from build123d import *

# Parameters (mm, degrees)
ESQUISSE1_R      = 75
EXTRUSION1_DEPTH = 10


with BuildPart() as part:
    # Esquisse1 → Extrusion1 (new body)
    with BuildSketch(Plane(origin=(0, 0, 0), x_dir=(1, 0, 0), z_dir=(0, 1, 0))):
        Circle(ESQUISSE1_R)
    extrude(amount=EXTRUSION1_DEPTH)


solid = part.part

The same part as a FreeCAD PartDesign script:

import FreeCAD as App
import Part
import Sketcher

doc = App.newDocument("Part")
body = doc.addObject("PartDesign::Body", "Body")

sketch1 = body.newObject("Sketcher::SketchObject", "Sketch")
sketch1.AttachmentSupport = (doc.getObject("XZ_Plane"), [""])
sketch1.MapMode = "FlatFace"
sketch1.addGeometry(Part.Circle(App.Vector(0, 0, 0), App.Vector(0, 0, 1), 75), False)
sketch1.addConstraint([
    Sketcher.Constraint("Coincident", 0, 3, -1, 1),
    Sketcher.Constraint("Diameter", 0, 150.0),
])
pad1 = body.newObject("PartDesign::Pad", "Pad")
pad1.Profile = sketch1
pad1.Length = 10
pad1.Reversed = True

doc.recompute()
